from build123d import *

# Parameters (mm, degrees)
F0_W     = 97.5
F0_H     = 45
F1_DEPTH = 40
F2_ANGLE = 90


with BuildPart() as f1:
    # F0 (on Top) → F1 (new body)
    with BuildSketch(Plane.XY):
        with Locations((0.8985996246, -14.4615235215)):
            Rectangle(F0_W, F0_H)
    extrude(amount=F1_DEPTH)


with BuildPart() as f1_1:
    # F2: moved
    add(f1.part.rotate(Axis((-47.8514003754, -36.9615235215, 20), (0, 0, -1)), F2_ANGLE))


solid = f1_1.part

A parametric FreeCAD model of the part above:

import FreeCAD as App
import Part
import Sketcher

V = App.Vector
Q = App.Units.Quantity


def add_polygon(sketch, points):
    """Adds a closed chain of lines whose ends are joined by coincident constraints."""
    first, n = sketch.GeometryCount, len(points)
    for a, b in zip(points, points[1:] + points[:1]):
        sketch.addGeometry(Part.LineSegment(App.Vector(*a, 0), App.Vector(*b, 0)), False)
    for i in range(n):
        sketch.addConstraint(Sketcher.Constraint("Coincident", first + i, 2, first + (i + 1) % n, 1))

doc = App.newDocument("Part")
body = doc.addObject("PartDesign::Body", "Body")

sketch1 = doc.addObject("Sketcher::SketchObject", "Sketch")
body.addObject(sketch1)
sketch1.AttachmentSupport = (doc.XY_Plane, [""])
sketch1.MapMode = "FlatFace"
add_polygon(sketch1, [(-47.8514, 8.038476), (-47.8514, -36.961524), (49.6486, -36.961524), (49.6486, 8.038476)])
sketch1.addConstraint([
    Sketcher.Constraint("Vertical", 0),
    Sketcher.Constraint("Horizontal", 1),
    Sketcher.Constraint("Vertical", 2),
    Sketcher.Constraint("Horizontal", 3),
    Sketcher.Constraint("DistanceY", 0, 2, 0, 1, Q("45 mm")),
    Sketcher.Constraint("DistanceX", 1, 1, 1, 2, Q("97.5 mm")),
    Sketcher.Constraint("DistanceX", 0, 2, -1, 1, Q("47.8514 mm")),
    Sketcher.Constraint("DistanceY", 0, 2, -1, 1, Q("36.961524 mm")),
])
pad1 = doc.addObject("PartDesign::Pad", "Pad")
body.addObject(pad1)
pad1.Profile = sketch1
pad1.Length = 40
body2 = doc.addObject("PartDesign::Body", "Body001")
doc.recompute()

body.Placement = App.Placement(V(-10.889877, -84.812924, 0), App.Rotation(V(0, 0, -1), 90))
boolean = doc.addObject("PartDesign::Boolean", "Boolean")
body2.addObject(boolean)
boolean.Type = "Fuse"
boolean.addObjects([body])

doc.recompute()
